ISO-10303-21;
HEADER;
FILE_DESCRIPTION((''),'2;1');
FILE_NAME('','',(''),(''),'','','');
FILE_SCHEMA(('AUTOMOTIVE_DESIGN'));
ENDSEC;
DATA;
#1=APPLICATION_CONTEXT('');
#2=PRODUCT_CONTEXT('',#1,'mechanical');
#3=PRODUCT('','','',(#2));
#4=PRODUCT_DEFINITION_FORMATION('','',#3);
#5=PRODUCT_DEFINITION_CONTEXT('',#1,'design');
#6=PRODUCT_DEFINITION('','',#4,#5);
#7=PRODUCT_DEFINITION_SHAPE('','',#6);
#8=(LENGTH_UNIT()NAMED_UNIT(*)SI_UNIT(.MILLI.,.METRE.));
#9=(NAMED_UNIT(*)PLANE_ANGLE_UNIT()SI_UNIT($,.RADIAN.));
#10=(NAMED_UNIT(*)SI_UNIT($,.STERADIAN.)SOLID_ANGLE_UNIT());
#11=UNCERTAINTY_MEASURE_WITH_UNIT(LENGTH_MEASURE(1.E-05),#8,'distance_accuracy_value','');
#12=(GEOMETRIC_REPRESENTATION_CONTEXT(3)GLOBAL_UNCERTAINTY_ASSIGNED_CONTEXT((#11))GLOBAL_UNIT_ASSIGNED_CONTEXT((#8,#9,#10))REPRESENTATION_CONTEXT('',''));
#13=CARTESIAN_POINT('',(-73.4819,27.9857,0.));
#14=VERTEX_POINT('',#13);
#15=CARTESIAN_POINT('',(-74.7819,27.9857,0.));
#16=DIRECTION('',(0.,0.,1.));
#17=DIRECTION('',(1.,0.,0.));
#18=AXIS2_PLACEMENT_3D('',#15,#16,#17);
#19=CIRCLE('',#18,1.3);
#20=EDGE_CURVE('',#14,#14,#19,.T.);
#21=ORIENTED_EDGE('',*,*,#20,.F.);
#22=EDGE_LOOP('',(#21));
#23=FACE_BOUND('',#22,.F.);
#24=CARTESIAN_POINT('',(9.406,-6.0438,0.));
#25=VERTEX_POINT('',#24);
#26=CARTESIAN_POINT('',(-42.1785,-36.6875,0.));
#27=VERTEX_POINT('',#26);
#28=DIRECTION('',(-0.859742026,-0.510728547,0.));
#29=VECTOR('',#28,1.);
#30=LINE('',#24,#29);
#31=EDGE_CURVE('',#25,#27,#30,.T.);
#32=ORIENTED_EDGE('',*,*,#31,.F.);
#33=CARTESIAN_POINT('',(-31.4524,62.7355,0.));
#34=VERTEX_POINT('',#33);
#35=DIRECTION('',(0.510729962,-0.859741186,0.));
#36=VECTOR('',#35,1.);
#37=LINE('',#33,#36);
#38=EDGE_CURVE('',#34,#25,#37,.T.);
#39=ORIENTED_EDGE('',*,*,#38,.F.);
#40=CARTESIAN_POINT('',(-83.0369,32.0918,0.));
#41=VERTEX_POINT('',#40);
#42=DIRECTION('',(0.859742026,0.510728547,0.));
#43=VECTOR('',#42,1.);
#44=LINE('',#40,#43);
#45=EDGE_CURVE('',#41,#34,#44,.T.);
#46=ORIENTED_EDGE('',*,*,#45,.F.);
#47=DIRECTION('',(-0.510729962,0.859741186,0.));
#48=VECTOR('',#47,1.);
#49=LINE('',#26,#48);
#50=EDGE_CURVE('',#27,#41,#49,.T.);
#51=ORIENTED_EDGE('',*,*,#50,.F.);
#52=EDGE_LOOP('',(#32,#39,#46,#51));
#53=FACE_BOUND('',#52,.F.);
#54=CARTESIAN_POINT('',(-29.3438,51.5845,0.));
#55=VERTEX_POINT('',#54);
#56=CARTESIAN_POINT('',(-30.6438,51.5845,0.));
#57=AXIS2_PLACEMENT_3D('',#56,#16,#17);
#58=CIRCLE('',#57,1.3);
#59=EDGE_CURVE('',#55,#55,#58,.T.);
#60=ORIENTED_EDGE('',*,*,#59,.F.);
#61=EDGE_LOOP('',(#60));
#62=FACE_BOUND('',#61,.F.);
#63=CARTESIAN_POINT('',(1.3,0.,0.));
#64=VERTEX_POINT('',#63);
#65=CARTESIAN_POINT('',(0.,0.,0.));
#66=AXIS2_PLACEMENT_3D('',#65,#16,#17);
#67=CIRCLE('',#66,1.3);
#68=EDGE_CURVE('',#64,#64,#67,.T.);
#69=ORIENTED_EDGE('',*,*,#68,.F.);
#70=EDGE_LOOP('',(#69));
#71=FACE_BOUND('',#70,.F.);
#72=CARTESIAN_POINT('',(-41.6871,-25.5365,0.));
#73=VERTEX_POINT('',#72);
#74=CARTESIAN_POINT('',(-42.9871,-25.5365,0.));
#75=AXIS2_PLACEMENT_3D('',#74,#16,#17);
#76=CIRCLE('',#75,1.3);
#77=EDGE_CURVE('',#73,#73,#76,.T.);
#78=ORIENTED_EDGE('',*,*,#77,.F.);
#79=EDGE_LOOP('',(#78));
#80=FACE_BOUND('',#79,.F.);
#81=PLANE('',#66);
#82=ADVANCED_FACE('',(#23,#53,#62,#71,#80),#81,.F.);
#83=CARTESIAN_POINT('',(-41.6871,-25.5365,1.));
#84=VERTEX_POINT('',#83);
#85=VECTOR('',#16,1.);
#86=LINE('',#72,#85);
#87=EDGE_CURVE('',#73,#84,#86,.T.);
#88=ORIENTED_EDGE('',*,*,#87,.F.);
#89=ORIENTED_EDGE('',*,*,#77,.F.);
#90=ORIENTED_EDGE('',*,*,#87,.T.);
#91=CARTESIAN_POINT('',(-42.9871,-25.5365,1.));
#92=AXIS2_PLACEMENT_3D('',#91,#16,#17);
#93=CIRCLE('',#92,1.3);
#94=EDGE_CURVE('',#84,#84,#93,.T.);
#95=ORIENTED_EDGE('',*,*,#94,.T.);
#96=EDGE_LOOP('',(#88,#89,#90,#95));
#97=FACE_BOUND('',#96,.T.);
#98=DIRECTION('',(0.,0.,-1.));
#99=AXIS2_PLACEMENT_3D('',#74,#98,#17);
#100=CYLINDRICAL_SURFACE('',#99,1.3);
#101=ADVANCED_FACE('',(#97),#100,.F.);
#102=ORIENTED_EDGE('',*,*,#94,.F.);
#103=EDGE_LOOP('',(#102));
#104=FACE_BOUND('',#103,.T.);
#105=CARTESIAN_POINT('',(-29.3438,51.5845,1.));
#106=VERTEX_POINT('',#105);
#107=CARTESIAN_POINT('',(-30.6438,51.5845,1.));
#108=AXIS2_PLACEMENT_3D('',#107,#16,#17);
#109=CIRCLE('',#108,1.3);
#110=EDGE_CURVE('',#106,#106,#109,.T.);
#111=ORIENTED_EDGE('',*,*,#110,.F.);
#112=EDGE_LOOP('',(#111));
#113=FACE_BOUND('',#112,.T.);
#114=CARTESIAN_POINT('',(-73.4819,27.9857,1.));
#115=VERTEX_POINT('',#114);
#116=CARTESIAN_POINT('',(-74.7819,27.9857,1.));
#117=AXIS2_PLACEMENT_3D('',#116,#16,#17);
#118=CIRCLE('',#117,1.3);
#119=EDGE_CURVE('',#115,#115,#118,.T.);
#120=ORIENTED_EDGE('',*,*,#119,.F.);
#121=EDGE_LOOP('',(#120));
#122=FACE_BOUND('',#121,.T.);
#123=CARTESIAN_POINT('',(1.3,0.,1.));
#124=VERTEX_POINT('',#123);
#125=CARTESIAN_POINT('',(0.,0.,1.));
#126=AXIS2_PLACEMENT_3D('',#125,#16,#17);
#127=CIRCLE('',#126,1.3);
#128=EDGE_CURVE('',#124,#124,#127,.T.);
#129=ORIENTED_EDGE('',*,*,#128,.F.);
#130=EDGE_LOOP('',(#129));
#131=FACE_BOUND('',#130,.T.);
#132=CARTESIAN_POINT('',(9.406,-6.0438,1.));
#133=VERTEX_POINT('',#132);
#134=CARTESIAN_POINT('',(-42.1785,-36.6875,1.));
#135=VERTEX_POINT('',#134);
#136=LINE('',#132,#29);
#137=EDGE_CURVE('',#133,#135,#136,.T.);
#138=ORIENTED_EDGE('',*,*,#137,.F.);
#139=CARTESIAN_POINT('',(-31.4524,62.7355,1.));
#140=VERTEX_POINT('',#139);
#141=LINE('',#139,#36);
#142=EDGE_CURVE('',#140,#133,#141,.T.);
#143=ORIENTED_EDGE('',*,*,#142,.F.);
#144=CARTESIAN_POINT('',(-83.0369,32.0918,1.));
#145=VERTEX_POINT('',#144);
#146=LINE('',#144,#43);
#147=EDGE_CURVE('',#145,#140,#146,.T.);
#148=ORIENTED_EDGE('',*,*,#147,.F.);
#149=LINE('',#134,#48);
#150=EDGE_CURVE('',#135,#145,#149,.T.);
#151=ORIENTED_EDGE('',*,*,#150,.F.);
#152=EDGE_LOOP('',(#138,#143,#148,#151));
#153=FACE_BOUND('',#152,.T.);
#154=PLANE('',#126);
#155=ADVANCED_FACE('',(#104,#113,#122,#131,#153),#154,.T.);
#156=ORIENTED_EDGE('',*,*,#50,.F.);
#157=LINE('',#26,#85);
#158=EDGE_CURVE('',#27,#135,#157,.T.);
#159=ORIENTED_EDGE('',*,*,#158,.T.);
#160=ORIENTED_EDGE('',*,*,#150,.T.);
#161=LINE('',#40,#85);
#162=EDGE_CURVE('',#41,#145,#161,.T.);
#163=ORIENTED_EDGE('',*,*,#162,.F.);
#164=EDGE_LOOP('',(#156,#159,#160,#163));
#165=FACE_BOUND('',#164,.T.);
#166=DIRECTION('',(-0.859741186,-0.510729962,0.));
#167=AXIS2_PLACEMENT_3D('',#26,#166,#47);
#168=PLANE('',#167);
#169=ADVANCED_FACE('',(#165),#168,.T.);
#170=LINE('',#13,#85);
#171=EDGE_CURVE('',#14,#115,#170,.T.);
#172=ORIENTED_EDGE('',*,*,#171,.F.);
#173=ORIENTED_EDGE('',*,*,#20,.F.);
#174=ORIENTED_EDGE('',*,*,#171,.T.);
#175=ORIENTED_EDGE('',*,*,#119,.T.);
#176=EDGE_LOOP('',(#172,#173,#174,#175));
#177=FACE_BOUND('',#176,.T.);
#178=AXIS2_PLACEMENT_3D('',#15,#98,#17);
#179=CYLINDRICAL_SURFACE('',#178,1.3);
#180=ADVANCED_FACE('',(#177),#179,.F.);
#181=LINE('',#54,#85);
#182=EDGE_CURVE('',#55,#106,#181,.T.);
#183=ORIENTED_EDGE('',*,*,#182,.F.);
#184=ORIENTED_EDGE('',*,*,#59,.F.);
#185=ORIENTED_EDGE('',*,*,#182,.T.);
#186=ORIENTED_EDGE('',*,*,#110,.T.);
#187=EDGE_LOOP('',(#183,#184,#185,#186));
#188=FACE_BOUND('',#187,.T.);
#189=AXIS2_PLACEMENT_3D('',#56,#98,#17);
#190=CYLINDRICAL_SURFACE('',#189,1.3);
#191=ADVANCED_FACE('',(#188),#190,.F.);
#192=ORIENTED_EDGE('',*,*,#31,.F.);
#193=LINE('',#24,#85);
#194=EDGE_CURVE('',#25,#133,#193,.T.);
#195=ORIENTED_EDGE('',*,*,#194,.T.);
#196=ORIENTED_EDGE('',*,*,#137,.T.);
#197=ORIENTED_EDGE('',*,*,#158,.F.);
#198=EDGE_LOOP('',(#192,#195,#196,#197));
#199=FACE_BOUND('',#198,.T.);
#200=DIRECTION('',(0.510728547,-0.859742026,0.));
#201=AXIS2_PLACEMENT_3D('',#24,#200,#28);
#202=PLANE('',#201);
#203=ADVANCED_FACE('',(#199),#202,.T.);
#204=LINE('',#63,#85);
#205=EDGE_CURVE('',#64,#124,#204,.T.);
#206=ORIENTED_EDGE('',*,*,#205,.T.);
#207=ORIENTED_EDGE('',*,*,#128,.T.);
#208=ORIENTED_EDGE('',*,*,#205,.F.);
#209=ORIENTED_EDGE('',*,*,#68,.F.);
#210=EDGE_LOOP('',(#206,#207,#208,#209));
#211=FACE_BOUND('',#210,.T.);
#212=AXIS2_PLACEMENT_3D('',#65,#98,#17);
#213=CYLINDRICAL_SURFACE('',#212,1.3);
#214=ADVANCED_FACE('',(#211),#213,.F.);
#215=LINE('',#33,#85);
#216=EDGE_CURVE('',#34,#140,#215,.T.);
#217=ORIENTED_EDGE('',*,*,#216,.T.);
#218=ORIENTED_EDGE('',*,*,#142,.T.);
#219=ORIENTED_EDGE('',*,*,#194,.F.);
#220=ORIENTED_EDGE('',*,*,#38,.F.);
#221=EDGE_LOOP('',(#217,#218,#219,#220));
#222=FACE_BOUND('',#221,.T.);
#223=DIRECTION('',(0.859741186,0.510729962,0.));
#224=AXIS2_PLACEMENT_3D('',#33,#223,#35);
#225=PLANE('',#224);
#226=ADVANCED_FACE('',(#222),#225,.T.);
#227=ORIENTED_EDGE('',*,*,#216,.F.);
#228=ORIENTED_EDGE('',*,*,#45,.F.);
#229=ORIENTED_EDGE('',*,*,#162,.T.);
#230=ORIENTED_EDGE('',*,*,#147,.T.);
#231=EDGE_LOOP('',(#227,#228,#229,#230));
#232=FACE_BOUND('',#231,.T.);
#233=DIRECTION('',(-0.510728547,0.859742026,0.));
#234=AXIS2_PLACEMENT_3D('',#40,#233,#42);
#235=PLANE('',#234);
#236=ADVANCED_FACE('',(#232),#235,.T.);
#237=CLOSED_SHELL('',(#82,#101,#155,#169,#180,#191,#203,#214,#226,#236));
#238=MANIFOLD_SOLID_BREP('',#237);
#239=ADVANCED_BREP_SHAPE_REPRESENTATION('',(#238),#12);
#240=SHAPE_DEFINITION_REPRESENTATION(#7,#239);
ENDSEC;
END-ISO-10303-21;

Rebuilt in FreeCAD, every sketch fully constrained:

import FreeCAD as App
import Part
import Sketcher
from FreeCAD import Vector
Q = App.Units.Quantity


def add_polygon(sketch, points):
    """Adds a closed chain of lines whose ends are joined by coincident constraints."""
    first, n = sketch.GeometryCount, len(points)
    for a, b in zip(points, points[1:] + points[:1]):
        sketch.addGeometry(Part.LineSegment(App.Vector(*a, 0), App.Vector(*b, 0)), False)
    for i in range(n):
        sketch.addConstraint(Sketcher.Constraint("Coincident", first + i, 2, first + (i + 1) % n, 1))

doc = App.newDocument("Part")
params = doc.addObject("Spreadsheet::Sheet", "Params")
for row, (alias, value) in enumerate([
    ("sketch1_length", "60 mm"),
    ("sketch1_length2", "80 mm"),
    ("sketch1_diameter", "2.6 mm"),
    ("pad1_length", "1 mm"),
], start=1):
    params.set(f"A{row}", alias)
    params.set(f"B{row}", "=" + value)
    params.setAlias(f"B{row}", alias)

body = doc.addObject("PartDesign::Body", "Body")

# Sketch on XY plane
sketch1 = body.newObject("Sketcher::SketchObject", "Sketch")
sketch1.AttachmentSupport = (doc.getObject("XY_Plane"), [""])
sketch1.MapMode = "FlatFace"
add_polygon(sketch1, [(-42.2, -36.7), (9.4, -6), (-31.5, 62.7), (-83, 32.1)])  # lines 0-3
sketch1.addGeometry(Part.Circle(Vector(-43, -25.5, 0), Vector(0, 0, 1), 1.3), False)  # 4
sketch1.addGeometry(Part.Circle(Vector(0, 0, 0), Vector(0, 0, 1), 1.3), False)  # 5
sketch1.addGeometry(Part.Circle(Vector(-74.8, 28, 0), Vector(0, 0, 1), 1.3), False)  # 6
sketch1.addGeometry(Part.Circle(Vector(-30.6, 51.6, 0), Vector(0, 0, 1), 1.3), False)  # 7
sketch1.addConstraint(Sketcher.Constraint("Coincident", 5, 3, -1, 1))
sketch1.addConstraint(Sketcher.Constraint("Equal", 4, 5))
sketch1.addConstraint(Sketcher.Constraint("Equal", 5, 6))
sketch1.addConstraint(Sketcher.Constraint("Equal", 6, 7))
sketch1.addConstraint(Sketcher.Constraint("Perpendicular", 0, 1))
sketch1.addConstraint(Sketcher.Constraint("Perpendicular", 1, 2))
sketch1.addConstraint(Sketcher.Constraint("Perpendicular", 2, 3))
sketch1.addConstraint(Sketcher.Constraint("Distance", 0, Q("60 mm")))
sketch1.addConstraint(Sketcher.Constraint("Distance", 1, Q("80 mm")))
sketch1.addConstraint(Sketcher.Constraint("Diameter", 4, Q("2.6 mm")))
sketch1.addConstraint(Sketcher.Constraint("DistanceX", 4, 3, -1, 1, Q("42.987 mm")))
sketch1.addConstraint(Sketcher.Constraint("DistanceX", 6, 3, -1, 1, Q("74.782 mm")))
sketch1.addConstraint(Sketcher.Constraint("DistanceX", -1, 1, 0, 2, Q("9.406 mm")))
sketch1.addConstraint(Sketcher.Constraint("DistanceX", 2, 2, -1, 1, Q("83.037 mm")))
sketch1.addConstraint(Sketcher.Constraint("DistanceX", 6, 3, 7, 3, Q("44.138 mm")))
sketch1.addConstraint(Sketcher.Constraint("DistanceY", 4, 3, 7, 3, Q("77.121 mm")))
sketch1.addConstraint(Sketcher.Constraint("DistanceY", 7, 3, 1, 2, Q("11.151 mm")))
sketch1.addConstraint(Sketcher.Constraint("DistanceY", 6, 3, 2, 2, Q("4.106 mm")))
sketch1.addConstraint(Sketcher.Constraint("DistanceY", 4, 3, -1, 1, Q("25.5365 mm")))
sketch1.setExpression("Constraints[11]", "Params.sketch1_length")
sketch1.setExpression("Constraints[12]", "Params.sketch1_length2")
sketch1.setExpression("Constraints[13]", "Params.sketch1_diameter")
pad1 = body.newObject("PartDesign::Pad", "Pad")
pad1.Profile = sketch1
pad1.setExpression("Length", "Params.pad1_length")

doc.recompute()
